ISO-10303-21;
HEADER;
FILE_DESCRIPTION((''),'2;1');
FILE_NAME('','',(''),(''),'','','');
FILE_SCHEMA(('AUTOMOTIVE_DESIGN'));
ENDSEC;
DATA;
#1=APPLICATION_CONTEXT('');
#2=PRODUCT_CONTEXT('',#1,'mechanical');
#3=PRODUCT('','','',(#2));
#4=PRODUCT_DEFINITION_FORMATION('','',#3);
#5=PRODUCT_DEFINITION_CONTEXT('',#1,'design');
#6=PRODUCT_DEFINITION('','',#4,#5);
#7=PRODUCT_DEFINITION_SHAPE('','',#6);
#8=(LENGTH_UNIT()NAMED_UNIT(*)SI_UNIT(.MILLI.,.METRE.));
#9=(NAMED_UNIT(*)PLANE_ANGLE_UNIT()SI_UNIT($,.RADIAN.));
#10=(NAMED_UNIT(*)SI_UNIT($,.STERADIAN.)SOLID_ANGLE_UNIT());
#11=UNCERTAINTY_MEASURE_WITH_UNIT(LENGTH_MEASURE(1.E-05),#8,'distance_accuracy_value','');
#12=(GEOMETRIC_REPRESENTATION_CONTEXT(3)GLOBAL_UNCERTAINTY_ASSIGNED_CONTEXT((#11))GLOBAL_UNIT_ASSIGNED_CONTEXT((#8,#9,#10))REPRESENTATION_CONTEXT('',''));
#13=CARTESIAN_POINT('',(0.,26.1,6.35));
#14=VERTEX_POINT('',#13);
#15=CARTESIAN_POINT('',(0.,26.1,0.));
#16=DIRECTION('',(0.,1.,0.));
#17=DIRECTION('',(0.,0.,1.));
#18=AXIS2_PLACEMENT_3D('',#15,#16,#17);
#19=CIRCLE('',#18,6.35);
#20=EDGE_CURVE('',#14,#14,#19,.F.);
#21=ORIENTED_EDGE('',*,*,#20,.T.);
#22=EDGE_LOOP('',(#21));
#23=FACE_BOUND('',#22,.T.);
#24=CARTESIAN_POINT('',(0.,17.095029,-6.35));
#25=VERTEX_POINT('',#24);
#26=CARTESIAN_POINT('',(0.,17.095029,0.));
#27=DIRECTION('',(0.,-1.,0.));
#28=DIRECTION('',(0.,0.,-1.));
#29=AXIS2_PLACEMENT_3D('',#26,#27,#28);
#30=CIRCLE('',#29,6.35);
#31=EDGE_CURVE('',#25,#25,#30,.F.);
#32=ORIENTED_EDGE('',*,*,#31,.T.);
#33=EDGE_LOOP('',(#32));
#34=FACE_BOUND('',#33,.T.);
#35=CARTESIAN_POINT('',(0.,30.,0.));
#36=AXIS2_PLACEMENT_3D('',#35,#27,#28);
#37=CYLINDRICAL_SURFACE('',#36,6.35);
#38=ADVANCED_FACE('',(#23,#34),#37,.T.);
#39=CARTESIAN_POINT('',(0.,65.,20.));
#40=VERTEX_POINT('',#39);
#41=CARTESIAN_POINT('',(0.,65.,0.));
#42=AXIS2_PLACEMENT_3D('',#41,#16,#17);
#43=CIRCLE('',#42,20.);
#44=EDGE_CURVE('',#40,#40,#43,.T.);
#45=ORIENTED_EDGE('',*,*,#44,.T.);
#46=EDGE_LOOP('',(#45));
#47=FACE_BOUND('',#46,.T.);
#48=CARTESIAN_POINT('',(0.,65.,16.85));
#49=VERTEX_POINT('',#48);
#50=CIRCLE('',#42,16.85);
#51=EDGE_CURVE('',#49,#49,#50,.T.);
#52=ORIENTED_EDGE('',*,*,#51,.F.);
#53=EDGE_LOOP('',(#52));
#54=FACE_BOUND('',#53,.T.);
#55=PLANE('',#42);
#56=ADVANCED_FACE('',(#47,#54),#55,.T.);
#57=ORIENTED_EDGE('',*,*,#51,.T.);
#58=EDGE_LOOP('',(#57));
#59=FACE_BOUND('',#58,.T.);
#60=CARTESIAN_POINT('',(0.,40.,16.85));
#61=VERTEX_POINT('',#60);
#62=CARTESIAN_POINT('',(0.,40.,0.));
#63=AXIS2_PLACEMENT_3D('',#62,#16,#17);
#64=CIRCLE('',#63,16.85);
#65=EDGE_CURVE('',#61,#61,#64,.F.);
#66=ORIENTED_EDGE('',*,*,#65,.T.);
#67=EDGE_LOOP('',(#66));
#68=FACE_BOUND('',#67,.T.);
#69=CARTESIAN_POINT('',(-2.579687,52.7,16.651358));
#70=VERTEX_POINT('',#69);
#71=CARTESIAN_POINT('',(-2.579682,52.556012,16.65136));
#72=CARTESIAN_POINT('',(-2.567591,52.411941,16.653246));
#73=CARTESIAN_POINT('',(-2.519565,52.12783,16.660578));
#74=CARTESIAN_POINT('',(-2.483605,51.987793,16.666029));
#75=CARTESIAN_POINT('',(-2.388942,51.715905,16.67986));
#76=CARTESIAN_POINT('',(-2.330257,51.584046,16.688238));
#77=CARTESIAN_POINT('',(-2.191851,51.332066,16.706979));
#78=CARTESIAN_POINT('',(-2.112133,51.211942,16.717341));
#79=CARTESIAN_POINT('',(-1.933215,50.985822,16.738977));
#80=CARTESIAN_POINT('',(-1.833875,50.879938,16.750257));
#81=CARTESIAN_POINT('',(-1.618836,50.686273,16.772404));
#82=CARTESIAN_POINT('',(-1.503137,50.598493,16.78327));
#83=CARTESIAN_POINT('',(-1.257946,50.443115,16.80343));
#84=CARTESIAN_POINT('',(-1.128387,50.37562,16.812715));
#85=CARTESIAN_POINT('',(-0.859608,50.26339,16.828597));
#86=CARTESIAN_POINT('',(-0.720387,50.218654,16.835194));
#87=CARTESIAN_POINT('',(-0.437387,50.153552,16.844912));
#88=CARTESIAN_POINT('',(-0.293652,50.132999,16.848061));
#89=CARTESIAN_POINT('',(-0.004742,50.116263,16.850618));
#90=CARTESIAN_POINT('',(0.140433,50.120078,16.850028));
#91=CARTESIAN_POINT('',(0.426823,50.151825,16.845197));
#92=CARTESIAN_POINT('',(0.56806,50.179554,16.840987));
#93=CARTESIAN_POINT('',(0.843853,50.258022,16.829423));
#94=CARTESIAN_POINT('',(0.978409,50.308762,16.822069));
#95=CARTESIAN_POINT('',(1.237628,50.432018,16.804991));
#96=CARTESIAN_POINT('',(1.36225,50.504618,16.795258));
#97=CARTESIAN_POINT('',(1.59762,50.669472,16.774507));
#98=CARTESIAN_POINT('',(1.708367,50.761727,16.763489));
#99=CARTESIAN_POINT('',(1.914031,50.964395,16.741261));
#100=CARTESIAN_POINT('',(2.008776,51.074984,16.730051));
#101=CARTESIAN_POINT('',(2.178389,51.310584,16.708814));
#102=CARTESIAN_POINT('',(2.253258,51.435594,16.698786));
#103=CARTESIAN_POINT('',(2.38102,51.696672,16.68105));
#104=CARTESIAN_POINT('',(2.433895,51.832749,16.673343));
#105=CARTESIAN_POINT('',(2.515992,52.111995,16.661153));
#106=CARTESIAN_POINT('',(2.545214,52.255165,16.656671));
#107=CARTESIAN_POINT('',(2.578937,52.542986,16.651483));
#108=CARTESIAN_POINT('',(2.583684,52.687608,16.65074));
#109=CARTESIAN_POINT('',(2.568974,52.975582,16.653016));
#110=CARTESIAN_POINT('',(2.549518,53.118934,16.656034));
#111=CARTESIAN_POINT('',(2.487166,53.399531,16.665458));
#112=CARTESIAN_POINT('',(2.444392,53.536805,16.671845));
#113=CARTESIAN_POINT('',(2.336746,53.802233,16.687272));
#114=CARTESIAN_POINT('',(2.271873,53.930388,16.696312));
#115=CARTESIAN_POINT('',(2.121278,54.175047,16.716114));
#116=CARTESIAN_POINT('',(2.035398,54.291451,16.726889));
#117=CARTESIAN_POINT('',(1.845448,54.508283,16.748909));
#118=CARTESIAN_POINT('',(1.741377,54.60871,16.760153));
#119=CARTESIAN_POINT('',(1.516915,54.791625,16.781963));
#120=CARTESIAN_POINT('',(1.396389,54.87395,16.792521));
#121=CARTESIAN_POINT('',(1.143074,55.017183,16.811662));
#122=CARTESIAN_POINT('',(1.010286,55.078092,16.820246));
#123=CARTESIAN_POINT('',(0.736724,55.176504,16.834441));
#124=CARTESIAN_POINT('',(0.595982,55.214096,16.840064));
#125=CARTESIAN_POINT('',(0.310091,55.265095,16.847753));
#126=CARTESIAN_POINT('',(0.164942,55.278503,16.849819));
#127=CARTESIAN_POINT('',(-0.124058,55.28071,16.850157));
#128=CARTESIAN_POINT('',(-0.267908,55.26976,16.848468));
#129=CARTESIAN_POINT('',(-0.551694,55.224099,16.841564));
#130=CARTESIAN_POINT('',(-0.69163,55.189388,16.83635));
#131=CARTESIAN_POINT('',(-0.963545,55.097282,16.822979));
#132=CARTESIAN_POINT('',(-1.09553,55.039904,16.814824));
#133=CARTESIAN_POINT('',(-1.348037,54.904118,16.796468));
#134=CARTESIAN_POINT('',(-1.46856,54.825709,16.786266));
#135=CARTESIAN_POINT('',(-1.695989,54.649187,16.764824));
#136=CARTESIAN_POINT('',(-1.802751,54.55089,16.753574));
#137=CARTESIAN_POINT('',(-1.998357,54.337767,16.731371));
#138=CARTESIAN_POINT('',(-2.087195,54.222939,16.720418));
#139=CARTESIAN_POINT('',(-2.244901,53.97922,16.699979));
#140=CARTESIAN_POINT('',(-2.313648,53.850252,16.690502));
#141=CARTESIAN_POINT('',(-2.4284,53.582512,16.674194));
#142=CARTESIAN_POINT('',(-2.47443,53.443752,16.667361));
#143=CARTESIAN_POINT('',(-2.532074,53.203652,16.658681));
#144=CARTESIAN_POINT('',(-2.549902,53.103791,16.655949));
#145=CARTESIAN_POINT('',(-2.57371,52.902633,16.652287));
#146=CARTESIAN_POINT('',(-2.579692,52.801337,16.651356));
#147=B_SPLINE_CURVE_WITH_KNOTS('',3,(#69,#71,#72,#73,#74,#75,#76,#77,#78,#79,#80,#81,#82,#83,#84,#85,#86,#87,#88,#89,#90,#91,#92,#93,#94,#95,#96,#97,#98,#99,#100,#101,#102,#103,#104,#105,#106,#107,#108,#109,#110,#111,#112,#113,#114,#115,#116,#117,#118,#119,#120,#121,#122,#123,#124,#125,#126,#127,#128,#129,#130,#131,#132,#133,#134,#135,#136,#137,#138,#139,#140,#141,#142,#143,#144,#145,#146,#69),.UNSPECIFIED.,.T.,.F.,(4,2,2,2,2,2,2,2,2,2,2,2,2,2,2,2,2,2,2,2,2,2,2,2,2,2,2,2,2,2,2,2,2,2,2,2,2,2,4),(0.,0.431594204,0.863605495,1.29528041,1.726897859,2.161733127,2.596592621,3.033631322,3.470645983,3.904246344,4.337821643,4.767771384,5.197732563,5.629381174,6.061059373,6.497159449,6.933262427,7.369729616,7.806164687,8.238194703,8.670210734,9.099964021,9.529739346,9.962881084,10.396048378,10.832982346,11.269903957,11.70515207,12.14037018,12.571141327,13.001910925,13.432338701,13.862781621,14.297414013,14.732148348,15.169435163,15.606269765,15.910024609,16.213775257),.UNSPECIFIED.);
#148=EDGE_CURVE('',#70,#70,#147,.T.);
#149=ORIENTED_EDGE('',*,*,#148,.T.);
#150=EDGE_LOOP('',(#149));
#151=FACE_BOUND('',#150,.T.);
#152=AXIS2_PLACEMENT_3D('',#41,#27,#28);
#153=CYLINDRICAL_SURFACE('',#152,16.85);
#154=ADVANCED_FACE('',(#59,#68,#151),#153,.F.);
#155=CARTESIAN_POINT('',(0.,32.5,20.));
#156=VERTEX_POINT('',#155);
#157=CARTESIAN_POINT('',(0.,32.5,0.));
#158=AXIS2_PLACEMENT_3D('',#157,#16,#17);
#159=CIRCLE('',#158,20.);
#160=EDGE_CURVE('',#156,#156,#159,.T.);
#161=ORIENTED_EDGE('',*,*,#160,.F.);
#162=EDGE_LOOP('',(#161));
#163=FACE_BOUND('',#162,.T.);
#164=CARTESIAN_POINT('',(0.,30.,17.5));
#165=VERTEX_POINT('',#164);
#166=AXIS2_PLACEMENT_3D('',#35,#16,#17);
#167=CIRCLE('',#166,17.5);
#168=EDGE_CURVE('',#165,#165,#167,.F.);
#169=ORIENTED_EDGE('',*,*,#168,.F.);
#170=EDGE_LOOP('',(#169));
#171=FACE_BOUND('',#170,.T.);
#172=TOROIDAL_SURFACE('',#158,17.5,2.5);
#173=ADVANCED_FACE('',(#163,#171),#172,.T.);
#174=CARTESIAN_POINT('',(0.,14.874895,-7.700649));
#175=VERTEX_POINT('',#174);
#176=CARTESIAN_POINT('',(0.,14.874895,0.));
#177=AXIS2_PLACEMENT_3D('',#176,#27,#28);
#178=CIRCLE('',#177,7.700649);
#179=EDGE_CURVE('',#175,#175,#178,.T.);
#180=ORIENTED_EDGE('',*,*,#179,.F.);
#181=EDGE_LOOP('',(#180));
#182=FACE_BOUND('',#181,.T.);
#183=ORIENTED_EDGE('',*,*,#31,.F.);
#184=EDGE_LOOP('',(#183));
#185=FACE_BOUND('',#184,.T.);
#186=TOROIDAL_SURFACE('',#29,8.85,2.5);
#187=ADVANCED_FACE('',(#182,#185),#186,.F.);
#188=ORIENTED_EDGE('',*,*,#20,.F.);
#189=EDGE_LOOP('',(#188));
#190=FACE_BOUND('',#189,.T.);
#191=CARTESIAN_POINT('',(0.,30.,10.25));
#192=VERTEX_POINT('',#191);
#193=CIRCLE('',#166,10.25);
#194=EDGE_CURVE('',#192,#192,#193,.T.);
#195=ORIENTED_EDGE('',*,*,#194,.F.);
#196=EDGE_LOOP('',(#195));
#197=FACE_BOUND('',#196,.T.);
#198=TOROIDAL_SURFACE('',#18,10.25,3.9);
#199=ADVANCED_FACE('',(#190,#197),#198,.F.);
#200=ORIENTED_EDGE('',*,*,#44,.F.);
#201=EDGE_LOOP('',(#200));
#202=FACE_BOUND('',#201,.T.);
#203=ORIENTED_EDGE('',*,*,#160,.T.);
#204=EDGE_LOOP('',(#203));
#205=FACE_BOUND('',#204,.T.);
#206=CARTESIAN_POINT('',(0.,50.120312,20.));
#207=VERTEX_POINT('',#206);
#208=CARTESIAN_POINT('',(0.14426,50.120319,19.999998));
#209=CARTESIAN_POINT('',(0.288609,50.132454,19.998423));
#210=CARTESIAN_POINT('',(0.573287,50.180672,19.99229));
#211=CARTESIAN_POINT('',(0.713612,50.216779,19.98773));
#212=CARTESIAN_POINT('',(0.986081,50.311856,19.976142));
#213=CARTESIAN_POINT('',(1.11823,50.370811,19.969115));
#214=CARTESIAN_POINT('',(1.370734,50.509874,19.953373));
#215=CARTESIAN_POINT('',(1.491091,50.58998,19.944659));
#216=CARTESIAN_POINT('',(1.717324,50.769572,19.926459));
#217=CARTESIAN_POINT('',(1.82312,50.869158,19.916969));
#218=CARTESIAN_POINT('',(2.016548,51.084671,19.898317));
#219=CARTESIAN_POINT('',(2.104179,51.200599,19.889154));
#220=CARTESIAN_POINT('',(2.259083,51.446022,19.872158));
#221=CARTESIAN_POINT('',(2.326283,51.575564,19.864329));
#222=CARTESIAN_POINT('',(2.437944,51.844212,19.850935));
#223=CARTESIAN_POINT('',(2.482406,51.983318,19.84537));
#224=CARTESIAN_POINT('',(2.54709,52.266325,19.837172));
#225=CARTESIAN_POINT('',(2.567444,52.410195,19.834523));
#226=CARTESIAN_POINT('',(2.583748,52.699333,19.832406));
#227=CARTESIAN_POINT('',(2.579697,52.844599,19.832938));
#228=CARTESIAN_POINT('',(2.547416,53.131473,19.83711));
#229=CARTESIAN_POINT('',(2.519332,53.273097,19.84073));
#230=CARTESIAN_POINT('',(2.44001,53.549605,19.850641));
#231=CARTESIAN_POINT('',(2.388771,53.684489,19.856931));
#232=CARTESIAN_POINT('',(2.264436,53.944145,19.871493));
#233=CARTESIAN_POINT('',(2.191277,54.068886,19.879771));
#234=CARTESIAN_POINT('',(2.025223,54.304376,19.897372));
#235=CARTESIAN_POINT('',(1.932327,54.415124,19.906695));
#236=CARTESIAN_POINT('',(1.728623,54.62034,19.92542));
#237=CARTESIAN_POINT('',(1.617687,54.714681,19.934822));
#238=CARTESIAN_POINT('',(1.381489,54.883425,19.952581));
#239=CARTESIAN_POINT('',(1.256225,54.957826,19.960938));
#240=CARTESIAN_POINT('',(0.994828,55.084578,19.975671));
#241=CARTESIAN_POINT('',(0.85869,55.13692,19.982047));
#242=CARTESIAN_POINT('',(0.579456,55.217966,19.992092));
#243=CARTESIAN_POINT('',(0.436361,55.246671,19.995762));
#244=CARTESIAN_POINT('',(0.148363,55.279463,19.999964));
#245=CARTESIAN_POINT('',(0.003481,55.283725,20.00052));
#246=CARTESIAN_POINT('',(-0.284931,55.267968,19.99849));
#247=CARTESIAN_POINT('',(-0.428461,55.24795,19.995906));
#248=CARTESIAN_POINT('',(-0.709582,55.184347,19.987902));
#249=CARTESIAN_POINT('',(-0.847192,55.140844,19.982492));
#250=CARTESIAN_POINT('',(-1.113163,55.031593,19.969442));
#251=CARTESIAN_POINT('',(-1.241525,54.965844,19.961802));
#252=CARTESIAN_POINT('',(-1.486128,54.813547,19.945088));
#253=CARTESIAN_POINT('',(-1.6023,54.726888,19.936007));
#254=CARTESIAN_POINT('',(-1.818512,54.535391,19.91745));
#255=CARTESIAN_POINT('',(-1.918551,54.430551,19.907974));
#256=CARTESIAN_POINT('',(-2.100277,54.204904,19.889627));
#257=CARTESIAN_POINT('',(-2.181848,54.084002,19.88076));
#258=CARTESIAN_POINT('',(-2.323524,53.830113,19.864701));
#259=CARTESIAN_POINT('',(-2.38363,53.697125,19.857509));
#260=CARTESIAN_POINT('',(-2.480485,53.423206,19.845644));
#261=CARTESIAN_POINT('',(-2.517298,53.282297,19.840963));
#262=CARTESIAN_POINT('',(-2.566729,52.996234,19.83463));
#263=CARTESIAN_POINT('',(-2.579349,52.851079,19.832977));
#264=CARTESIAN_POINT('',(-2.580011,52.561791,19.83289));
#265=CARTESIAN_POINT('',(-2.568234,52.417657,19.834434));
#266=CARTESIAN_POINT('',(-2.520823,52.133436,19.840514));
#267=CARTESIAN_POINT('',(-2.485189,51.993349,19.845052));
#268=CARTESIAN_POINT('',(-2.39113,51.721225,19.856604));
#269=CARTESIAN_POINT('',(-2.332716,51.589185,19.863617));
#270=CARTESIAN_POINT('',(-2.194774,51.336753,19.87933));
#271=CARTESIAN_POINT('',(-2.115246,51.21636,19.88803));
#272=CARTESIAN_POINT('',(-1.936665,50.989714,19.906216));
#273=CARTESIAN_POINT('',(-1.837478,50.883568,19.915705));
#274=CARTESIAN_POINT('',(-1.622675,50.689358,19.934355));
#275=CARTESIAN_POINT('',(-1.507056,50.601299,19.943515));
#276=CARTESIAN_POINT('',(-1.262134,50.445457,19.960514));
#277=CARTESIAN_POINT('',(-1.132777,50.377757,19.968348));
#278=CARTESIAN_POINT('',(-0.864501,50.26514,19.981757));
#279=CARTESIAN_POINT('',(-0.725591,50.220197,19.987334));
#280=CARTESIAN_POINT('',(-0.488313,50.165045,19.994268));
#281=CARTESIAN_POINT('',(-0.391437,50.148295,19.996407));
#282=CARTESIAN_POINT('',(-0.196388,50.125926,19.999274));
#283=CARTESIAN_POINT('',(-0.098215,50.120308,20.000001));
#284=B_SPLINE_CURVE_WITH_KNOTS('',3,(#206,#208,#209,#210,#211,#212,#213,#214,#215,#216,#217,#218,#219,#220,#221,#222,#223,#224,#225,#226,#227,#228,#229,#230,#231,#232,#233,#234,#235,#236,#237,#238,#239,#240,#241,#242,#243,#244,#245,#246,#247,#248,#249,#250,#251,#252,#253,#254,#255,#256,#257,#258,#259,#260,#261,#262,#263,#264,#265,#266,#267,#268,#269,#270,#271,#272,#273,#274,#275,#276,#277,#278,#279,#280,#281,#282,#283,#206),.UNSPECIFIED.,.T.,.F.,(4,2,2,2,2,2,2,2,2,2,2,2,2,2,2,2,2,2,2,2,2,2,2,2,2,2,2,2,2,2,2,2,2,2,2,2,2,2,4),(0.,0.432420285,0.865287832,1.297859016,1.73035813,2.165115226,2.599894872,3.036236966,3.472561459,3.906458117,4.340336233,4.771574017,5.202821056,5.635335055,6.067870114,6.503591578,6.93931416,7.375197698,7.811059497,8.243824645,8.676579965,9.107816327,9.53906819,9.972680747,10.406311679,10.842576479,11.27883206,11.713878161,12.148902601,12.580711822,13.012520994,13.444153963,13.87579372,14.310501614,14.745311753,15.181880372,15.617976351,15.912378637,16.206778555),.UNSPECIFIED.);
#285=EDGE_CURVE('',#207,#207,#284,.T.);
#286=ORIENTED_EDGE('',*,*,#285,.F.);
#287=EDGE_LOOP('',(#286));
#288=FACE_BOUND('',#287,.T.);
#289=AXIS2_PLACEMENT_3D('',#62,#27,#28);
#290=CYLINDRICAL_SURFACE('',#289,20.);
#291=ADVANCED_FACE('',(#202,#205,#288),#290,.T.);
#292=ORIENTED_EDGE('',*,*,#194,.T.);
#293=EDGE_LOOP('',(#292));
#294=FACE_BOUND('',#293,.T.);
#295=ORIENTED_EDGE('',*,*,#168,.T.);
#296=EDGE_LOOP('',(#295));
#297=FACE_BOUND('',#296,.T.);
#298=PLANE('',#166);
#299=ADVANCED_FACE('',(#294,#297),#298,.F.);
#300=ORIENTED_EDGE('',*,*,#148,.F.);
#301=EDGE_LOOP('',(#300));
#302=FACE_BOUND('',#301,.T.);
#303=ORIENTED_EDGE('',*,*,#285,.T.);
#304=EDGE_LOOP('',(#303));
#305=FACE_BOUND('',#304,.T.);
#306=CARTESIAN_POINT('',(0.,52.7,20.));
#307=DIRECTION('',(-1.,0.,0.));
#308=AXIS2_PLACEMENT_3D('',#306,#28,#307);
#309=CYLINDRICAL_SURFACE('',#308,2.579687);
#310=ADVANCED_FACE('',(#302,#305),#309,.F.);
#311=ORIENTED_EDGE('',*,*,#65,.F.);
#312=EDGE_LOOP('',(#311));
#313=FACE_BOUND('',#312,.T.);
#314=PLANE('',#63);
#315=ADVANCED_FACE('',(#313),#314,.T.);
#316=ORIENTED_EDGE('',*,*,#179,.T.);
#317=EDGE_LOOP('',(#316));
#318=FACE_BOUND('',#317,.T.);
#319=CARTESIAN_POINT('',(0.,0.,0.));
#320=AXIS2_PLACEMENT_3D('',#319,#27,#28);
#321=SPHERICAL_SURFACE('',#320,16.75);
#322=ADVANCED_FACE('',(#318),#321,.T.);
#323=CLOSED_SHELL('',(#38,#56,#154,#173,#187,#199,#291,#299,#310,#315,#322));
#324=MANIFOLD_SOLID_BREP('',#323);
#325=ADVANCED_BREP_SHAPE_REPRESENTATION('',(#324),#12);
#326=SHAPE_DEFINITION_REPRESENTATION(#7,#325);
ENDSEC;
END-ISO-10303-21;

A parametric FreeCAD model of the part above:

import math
import FreeCAD as App
import Part
import Sketcher
Q = App.Units.Quantity


def edges_at(feature, points):
    """Names of the edges that pass closest to the given points."""
    edges = feature.Shape.Edges
    near = lambda p: min(range(len(edges)), key=lambda i: edges[i].distToShape(Part.Vertex(*p))[0])
    return sorted({f"Edge{near(p) + 1}" for p in points})

doc = App.newDocument("Part")
body = doc.addObject("PartDesign::Body", "Body")

# Sketch on XZ plane
sketch1 = body.newObject("Sketcher::SketchObject", "Sketch")
sketch1.AttachmentSupport = (doc.getObject("XZ_Plane"), [""])
sketch1.MapMode = "FlatFace"
sketch1.addGeometry(Part.LineSegment(App.Vector(0, -17, 0), App.Vector(0, 17, 0)), False)
sketch1.addGeometry(Part.ArcOfCircle(Part.Circle(App.Vector(0, 0, 0), App.Vector(0, 0, 1), 17), math.radians(-90), math.radians(90)), False)
sketch1.addConstraint(Sketcher.Constraint("Coincident", 0, 1, 1, 1))
sketch1.addConstraint(Sketcher.Constraint("Coincident", 1, 2, 0, 2))
sketch1.addConstraint(Sketcher.Constraint("Vertical", 0))
sketch1.addConstraint(Sketcher.Constraint("Coincident", 1, 3, -1, 1))
sketch1.addConstraint(Sketcher.Constraint("PointOnObject", 0, 1, -2))
sketch1.addConstraint(Sketcher.Constraint("Radius", 1, Q("16.75 mm")))
revolution = body.newObject("PartDesign::Revolution", "Revolution")
revolution.Profile = sketch1
revolution.ReferenceAxis = (sketch1, ["V_Axis"])
revolution.Angle = 360

# Sketch on XZ plane
sketch2 = body.newObject("Sketcher::SketchObject", "Sketch001")
sketch2.AttachmentSupport = (doc.getObject("XZ_Plane"), [""])
sketch2.MapMode = "FlatFace"
sketch2.addGeometry(Part.Circle(App.Vector(0, 0, 0), App.Vector(0, 0, 1), 6), False)
sketch2.addConstraint(Sketcher.Constraint("Coincident", 0, 3, -1, 1))
sketch2.addConstraint(Sketcher.Constraint("Diameter", 0, Q("12.7 mm")))
pad1 = body.newObject("PartDesign::Pad", "Pad")
pad1.Profile = sketch2
pad1.Length = 30
pad1.Reversed = True

# Sketch on XZ plane
sketch3 = body.newObject("Sketcher::SketchObject", "Sketch002")
sketch3.AttachmentSupport = (doc.getObject("XZ_Plane"), [""])
sketch3.MapMode = "FlatFace"
sketch3.AttachmentOffset = App.Placement(App.Vector(0, 0, -30), App.Rotation())
sketch3.addGeometry(Part.Circle(App.Vector(0, 0, 0), App.Vector(0, 0, 1), 20), False)
sketch3.addConstraint(Sketcher.Constraint("Coincident", 0, 3, -1, 1))
sketch3.addConstraint(Sketcher.Constraint("Diameter", 0, Q("40 mm")))
pad2 = body.newObject("PartDesign::Pad", "Pad001")
pad2.Profile = sketch3
pad2.Length = 10
pad2.Reversed = True
doc.recompute()

fillet = body.newObject("PartDesign::Fillet", "Fillet")
fillet.Base = (pad2, edges_at(pad2, [(0, 30, 6.35)]))
fillet.Radius = 3.9

# Sketch on XZ plane
sketch4 = body.newObject("Sketcher::SketchObject", "Sketch003")
sketch4.AttachmentSupport = (doc.getObject("XZ_Plane"), [""])
sketch4.MapMode = "FlatFace"
sketch4.AttachmentOffset = App.Placement(App.Vector(0, 0, -40), App.Rotation())
sketch4.addGeometry(Part.Circle(App.Vector(0, 0, 0), App.Vector(0, 0, 1), 20), False)
sketch4.addGeometry(Part.Circle(App.Vector(0, 0, 0), App.Vector(0, 0, 1), 17), False)
sketch4.addConstraint(Sketcher.Constraint("Coincident", 0, 3, -1, 1))
sketch4.addConstraint(Sketcher.Constraint("Coincident", 1, 3, -1, 1))
sketch4.addConstraint(Sketcher.Constraint("Diameter", 0, Q("40 mm")))
sketch4.addConstraint(Sketcher.Constraint("Diameter", 1, Q("33.7 mm")))
pad3 = body.newObject("PartDesign::Pad", "Pad002")
pad3.Profile = sketch4
pad3.Length = 25
pad3.Reversed = True
doc.recompute()

fillet2 = body.newObject("PartDesign::Fillet", "Fillet001")
fillet2.Base = (pad3, edges_at(pad3, [(0, 30, -20)]))
fillet2.Radius = 2.5
doc.recompute()

fillet3 = body.newObject("PartDesign::Fillet", "Fillet002")
fillet3.Base = (fillet2, edges_at(fillet2, [(0, 15.5, 6.35)]))
fillet3.Radius = 2.5

# Sketch on XY plane
sketch5 = body.newObject("Sketcher::SketchObject", "Sketch004")
sketch5.AttachmentSupport = (doc.getObject("XY_Plane"), [""])
sketch5.MapMode = "FlatFace"
sketch5.addGeometry(Part.Circle(App.Vector(0, 52.7, 0), App.Vector(0, 0, 1), 2.6), False)
sketch5.addConstraint(Sketcher.Constraint("PointOnObject", 0, 3, -2))
sketch5.addConstraint(Sketcher.Constraint("DistanceY", -1, 1, 0, 3, Q("52.7 mm")))
sketch5.addConstraint(Sketcher.Constraint("Diameter", 0, Q("5.159375 mm")))
pocket1 = body.newObject("PartDesign::Pocket", "Pocket")
pocket1.Profile = sketch5
pocket1.Type = "ThroughAll"
pocket1.Reversed = True

doc.recompute()
